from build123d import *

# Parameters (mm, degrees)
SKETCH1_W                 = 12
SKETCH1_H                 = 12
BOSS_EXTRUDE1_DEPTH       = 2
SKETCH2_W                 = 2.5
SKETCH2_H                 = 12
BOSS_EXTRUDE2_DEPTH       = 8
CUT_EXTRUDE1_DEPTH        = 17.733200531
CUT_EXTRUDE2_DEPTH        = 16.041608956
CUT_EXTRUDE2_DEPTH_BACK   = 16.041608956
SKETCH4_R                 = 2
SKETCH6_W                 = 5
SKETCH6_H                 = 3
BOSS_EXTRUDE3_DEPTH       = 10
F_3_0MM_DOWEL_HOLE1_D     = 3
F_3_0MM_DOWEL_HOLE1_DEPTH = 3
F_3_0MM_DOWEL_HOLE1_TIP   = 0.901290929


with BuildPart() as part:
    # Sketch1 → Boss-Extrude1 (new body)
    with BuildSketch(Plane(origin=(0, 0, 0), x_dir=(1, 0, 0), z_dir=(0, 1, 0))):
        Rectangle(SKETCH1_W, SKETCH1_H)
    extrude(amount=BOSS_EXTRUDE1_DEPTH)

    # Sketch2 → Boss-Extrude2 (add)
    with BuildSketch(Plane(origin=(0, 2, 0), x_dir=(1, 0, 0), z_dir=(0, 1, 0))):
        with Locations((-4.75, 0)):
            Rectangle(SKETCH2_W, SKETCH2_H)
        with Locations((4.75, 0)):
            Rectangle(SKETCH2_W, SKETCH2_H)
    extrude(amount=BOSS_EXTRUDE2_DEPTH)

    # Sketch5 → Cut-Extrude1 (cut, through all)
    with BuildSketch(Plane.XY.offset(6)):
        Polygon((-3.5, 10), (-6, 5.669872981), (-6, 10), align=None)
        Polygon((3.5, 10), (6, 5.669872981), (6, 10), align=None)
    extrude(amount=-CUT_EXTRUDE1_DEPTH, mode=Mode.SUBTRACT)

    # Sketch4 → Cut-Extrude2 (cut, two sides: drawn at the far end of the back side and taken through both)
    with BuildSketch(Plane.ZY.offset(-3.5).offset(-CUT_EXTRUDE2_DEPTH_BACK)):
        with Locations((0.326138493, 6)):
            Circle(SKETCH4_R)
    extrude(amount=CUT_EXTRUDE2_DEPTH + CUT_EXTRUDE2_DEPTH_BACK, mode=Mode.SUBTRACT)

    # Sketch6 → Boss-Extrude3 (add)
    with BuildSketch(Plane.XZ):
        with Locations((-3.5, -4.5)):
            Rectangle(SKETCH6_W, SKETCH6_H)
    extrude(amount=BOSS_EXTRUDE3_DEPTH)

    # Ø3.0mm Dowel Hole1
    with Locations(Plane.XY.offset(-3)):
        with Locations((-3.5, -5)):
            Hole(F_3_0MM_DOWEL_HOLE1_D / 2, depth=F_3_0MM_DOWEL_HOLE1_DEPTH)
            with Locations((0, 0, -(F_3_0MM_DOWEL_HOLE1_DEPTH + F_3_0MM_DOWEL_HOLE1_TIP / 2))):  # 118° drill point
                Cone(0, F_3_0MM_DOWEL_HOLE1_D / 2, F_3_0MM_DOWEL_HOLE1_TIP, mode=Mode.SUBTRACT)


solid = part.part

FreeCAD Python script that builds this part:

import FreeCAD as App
import Part
import Sketcher
from FreeCAD import Vector
Q = App.Units.Quantity

doc = App.newDocument("Part")
body = doc.addObject("PartDesign::Body", "Body")

# Sketch on XZ plane
sketch1 = body.newObject("Sketcher::SketchObject", "Sketch")
sketch1.AttachmentSupport = (doc.getObject("XZ_Plane"), [""])
sketch1.MapMode = "FlatFace"
sketch1.addGeometry(Part.LineSegment(Vector(-6, -6, 0), Vector(-6, 6, 0)), False)
sketch1.addGeometry(Part.LineSegment(Vector(-6, 6, 0), Vector(6, 6, 0)), False)
sketch1.addGeometry(Part.LineSegment(Vector(6, 6, 0), Vector(6, -6, 0)), False)
sketch1.addGeometry(Part.LineSegment(Vector(6, -6, 0), Vector(-6, -6, 0)), False)
sketch1.addConstraint(Sketcher.Constraint("Coincident", 0, 2, 1, 1))
sketch1.addConstraint(Sketcher.Constraint("Coincident", 1, 2, 2, 1))
sketch1.addConstraint(Sketcher.Constraint("Coincident", 2, 2, 3, 1))
sketch1.addConstraint(Sketcher.Constraint("Coincident", 3, 2, 0, 1))
sketch1.addConstraint(Sketcher.Constraint("Vertical", 0))
sketch1.addConstraint(Sketcher.Constraint("Horizontal", 1))
sketch1.addConstraint(Sketcher.Constraint("Vertical", 2))
sketch1.addConstraint(Sketcher.Constraint("Horizontal", 3))
sketch1.addConstraint(Sketcher.Constraint("Symmetric", 0, 2, 2, 2, -1, 1))
sketch1.addConstraint(Sketcher.Constraint("Equal", 3, 0))
sketch1.addConstraint(Sketcher.Constraint("DistanceX", 1, 1, 1, 2, 12.0))
pad1 = body.newObject("PartDesign::Pad", "Pad")
pad1.Profile = sketch1
pad1.Length = 2
pad1.Reversed = True

# Sketch on XZ plane
sketch2 = body.newObject("Sketcher::SketchObject", "Sketch001")
sketch2.AttachmentSupport = (doc.getObject("XZ_Plane"), [""])
sketch2.MapMode = "FlatFace"
sketch2.AttachmentOffset = App.Placement(Vector(0, 0, -2), App.Rotation())
sketch2.addGeometry(Part.LineSegment(Vector(-6, -6, 0), Vector(-6, 6, 0)), False)
sketch2.addGeometry(Part.LineSegment(Vector(-6, 6, 0), Vector(-3.5, 6, 0)), False)
sketch2.addGeometry(Part.LineSegment(Vector(-3.5, 6, 0), Vector(-3.5, -6, 0)), False)
sketch2.addGeometry(Part.LineSegment(Vector(-3.5, -6, 0), Vector(-6, -6, 0)), False)
sketch2.addGeometry(Part.LineSegment(Vector(3.5, -6, 0), Vector(3.5, 6, 0)), False)
sketch2.addGeometry(Part.LineSegment(Vector(3.5, 6, 0), Vector(6, 6, 0)), False)
sketch2.addGeometry(Part.LineSegment(Vector(6, 6, 0), Vector(6, -6, 0)), False)
sketch2.addGeometry(Part.LineSegment(Vector(6, -6, 0), Vector(3.5, -6, 0)), False)
sketch2.addConstraint(Sketcher.Constraint("Coincident", 0, 2, 1, 1))
sketch2.addConstraint(Sketcher.Constraint("Coincident", 1, 2, 2, 1))
sketch2.addConstraint(Sketcher.Constraint("Coincident", 2, 2, 3, 1))
sketch2.addConstraint(Sketcher.Constraint("Coincident", 3, 2, 0, 1))
sketch2.addConstraint(Sketcher.Constraint("Coincident", 4, 2, 5, 1))
sketch2.addConstraint(Sketcher.Constraint("Coincident", 5, 2, 6, 1))
sketch2.addConstraint(Sketcher.Constraint("Coincident", 6, 2, 7, 1))
sketch2.addConstraint(Sketcher.Constraint("Coincident", 7, 2, 4, 1))
sketch2.addConstraint(Sketcher.Constraint("Vertical", 0))
sketch2.addConstraint(Sketcher.Constraint("Horizontal", 1))
sketch2.addConstraint(Sketcher.Constraint("Vertical", 2))
sketch2.addConstraint(Sketcher.Constraint("Horizontal", 3))
sketch2.addConstraint(Sketcher.Constraint("Vertical", 4))
sketch2.addConstraint(Sketcher.Constraint("Horizontal", 5))
sketch2.addConstraint(Sketcher.Constraint("Vertical", 6))
sketch2.addConstraint(Sketcher.Constraint("Horizontal", 7))
sketch2.addConstraint(Sketcher.Constraint("Symmetric", 2, 2, 4, 2, -1, 1))
sketch2.addConstraint(Sketcher.Constraint("Symmetric", 0, 2, 6, 2, -1, 1))
sketch2.addConstraint(Sketcher.Constraint("Horizontal", 1, 2, 4, 2))
sketch2.addConstraint(Sketcher.Constraint("DistanceY", 0, 1, 0, 2, 12.0))
sketch2.addConstraint(Sketcher.Constraint("DistanceX", 1, 1, 1, 2, 2.5))
sketch2.addConstraint(Sketcher.Constraint("DistanceX", 0, 2, -1, 1, 6.0))
pad2 = body.newObject("PartDesign::Pad", "Pad001")
pad2.Profile = sketch2
pad2.Length = 8
pad2.Reversed = True

# Sketch on XY plane
sketch3 = body.newObject("Sketcher::SketchObject", "Sketch002")
sketch3.AttachmentSupport = (doc.getObject("XY_Plane"), [""])
sketch3.MapMode = "FlatFace"
sketch3.AttachmentOffset = App.Placement(Vector(0, 0, 6), App.Rotation())
sketch3.addGeometry(Part.LineSegment(Vector(-6, 5.669873, 0), Vector(-3.5, 10, 0)), False)
sketch3.addGeometry(Part.LineSegment(Vector(-3.5, 10, 0), Vector(-6, 10, 0)), False)
sketch3.addGeometry(Part.LineSegment(Vector(-6, 10, 0), Vector(-6, 5.669873, 0)), False)
sketch3.addGeometry(Part.LineSegment(Vector(3.5, 10, 0), Vector(6, 5.669873, 0)), False)
sketch3.addGeometry(Part.LineSegment(Vector(6, 5.669873, 0), Vector(6, 10, 0)), False)
sketch3.addGeometry(Part.LineSegment(Vector(6, 10, 0), Vector(3.5, 10, 0)), False)
sketch3.addConstraint(Sketcher.Constraint("Coincident", 0, 2, 1, 1))
sketch3.addConstraint(Sketcher.Constraint("Coincident", 1, 2, 2, 1))
sketch3.addConstraint(Sketcher.Constraint("Coincident", 2, 2, 0, 1))
sketch3.addConstraint(Sketcher.Constraint("Coincident", 3, 2, 4, 1))
sketch3.addConstraint(Sketcher.Constraint("Coincident", 4, 2, 5, 1))
sketch3.addConstraint(Sketcher.Constraint("Coincident", 5, 2, 3, 1))
sketch3.addConstraint(Sketcher.Constraint("Horizontal", 1))
sketch3.addConstraint(Sketcher.Constraint("Vertical", 2))
sketch3.addConstraint(Sketcher.Constraint("Vertical", 4))
sketch3.addConstraint(Sketcher.Constraint("Horizontal", 5))
sketch3.addConstraint(Sketcher.Constraint("Symmetric", 2, 2, 3, 2, -2))
sketch3.addConstraint(Sketcher.Constraint("Symmetric", 0, 2, 5, 2, -2))
sketch3.addConstraint(Sketcher.Constraint("Angle", 0, Q("60 deg")))
sketch3.addConstraint(Sketcher.Constraint("Distance", 0, 5.0))
sketch3.addConstraint(Sketcher.Constraint("DistanceY", -1, 1, 0, 2, 10.0))
sketch3.addConstraint(Sketcher.Constraint("DistanceX", 1, 2, -1, 1, 6.0))
pocket1 = body.newObject("PartDesign::Pocket", "Pocket")
pocket1.Profile = sketch3
pocket1.Type = "ThroughAll"

# Sketch on YZ plane
sketch4 = body.newObject("Sketcher::SketchObject", "Sketch003")
sketch4.AttachmentSupport = (doc.getObject("YZ_Plane"), [""])
sketch4.MapMode = "FlatFace"
sketch4.AttachmentOffset = App.Placement(Vector(0, 0, 3.5), App.Rotation())
sketch4.addGeometry(Part.Circle(Vector(6, 0.326138, 0), Vector(0, 0, 1), 2), False)
sketch4.addConstraint(Sketcher.Constraint("Diameter", 0, 4.0))
sketch4.addConstraint(Sketcher.Constraint("DistanceX", -1, 1, 0, 3, 6.0))
sketch4.addConstraint(Sketcher.Constraint("DistanceY", -1, 1, 0, 3, 0.326138))
pocket2 = body.newObject("PartDesign::Pocket", "Pocket001")
pocket2.Profile = sketch4
pocket2.Type = "ThroughAll"
pocket2.Midplane = True

# Sketch on XZ plane
sketch5 = body.newObject("Sketcher::SketchObject", "Sketch004")
sketch5.AttachmentSupport = (doc.getObject("XZ_Plane"), [""])
sketch5.MapMode = "FlatFace"
sketch5.addGeometry(Part.LineSegment(Vector(-6, -3, 0), Vector(-6, -6, 0)), False)
sketch5.addGeometry(Part.LineSegment(Vector(-6, -6, 0), Vector(-1, -6, 0)), False)
sketch5.addGeometry(Part.LineSegment(Vector(-1, -6, 0), Vector(-1, -3, 0)), False)
sketch5.addGeometry(Part.LineSegment(Vector(-1, -3, 0), Vector(-6, -3, 0)), False)
sketch5.addConstraint(Sketcher.Constraint("Coincident", 0, 2, 1, 1))
sketch5.addConstraint(Sketcher.Constraint("Coincident", 1, 2, 2, 1))
sketch5.addConstraint(Sketcher.Constraint("Coincident", 2, 2, 3, 1))
sketch5.addConstraint(Sketcher.Constraint("Coincident", 3, 2, 0, 1))
sketch5.addConstraint(Sketcher.Constraint("Vertical", 0))
sketch5.addConstraint(Sketcher.Constraint("Horizontal", 1))
sketch5.addConstraint(Sketcher.Constraint("Vertical", 2))
sketch5.addConstraint(Sketcher.Constraint("Horizontal", 3))
sketch5.addConstraint(Sketcher.Constraint("DistanceX", 1, 1, 1, 2, 5.0))
sketch5.addConstraint(Sketcher.Constraint("DistanceY", 0, 2, 0, 1, 3.0))
sketch5.addConstraint(Sketcher.Constraint("DistanceX", 0, 2, -1, 1, 6.0))
sketch5.addConstraint(Sketcher.Constraint("DistanceY", 0, 2, -1, 1, 6.0))
pad3 = body.newObject("PartDesign::Pad", "Pad002")
pad3.Profile = sketch5
pad3.Length = 10

# Sketch on XY plane
sketch6 = body.newObject("Sketcher::SketchObject", "Sketch005")
sketch6.AttachmentSupport = (doc.getObject("XY_Plane"), [""])
sketch6.MapMode = "FlatFace"
sketch6.AttachmentOffset = App.Placement(Vector(0, 0, -3), App.Rotation())
sketch6.addGeometry(Part.Circle(Vector(-3.5, -5, 0), Vector(0, 0, 1), 1.5), False)
sketch6.addConstraint(Sketcher.Constraint("Diameter", 0, 3.0))
sketch6.addConstraint(Sketcher.Constraint("DistanceY", 0, 3, -1, 1, 5.0))
sketch6.addConstraint(Sketcher.Constraint("DistanceX", 0, 3, -1, 1, 3.5))
doc.recompute()
hole = body.newObject("PartDesign::Hole", "Hole")
hole.Profile = sketch6
hole.ThreadType = "None"
hole.Diameter = 3
hole.DepthType = "Dimension"
hole.Depth = 3
hole.DrillPoint = "Angled"
hole.DrillPointAngle = 118

doc.recompute()
